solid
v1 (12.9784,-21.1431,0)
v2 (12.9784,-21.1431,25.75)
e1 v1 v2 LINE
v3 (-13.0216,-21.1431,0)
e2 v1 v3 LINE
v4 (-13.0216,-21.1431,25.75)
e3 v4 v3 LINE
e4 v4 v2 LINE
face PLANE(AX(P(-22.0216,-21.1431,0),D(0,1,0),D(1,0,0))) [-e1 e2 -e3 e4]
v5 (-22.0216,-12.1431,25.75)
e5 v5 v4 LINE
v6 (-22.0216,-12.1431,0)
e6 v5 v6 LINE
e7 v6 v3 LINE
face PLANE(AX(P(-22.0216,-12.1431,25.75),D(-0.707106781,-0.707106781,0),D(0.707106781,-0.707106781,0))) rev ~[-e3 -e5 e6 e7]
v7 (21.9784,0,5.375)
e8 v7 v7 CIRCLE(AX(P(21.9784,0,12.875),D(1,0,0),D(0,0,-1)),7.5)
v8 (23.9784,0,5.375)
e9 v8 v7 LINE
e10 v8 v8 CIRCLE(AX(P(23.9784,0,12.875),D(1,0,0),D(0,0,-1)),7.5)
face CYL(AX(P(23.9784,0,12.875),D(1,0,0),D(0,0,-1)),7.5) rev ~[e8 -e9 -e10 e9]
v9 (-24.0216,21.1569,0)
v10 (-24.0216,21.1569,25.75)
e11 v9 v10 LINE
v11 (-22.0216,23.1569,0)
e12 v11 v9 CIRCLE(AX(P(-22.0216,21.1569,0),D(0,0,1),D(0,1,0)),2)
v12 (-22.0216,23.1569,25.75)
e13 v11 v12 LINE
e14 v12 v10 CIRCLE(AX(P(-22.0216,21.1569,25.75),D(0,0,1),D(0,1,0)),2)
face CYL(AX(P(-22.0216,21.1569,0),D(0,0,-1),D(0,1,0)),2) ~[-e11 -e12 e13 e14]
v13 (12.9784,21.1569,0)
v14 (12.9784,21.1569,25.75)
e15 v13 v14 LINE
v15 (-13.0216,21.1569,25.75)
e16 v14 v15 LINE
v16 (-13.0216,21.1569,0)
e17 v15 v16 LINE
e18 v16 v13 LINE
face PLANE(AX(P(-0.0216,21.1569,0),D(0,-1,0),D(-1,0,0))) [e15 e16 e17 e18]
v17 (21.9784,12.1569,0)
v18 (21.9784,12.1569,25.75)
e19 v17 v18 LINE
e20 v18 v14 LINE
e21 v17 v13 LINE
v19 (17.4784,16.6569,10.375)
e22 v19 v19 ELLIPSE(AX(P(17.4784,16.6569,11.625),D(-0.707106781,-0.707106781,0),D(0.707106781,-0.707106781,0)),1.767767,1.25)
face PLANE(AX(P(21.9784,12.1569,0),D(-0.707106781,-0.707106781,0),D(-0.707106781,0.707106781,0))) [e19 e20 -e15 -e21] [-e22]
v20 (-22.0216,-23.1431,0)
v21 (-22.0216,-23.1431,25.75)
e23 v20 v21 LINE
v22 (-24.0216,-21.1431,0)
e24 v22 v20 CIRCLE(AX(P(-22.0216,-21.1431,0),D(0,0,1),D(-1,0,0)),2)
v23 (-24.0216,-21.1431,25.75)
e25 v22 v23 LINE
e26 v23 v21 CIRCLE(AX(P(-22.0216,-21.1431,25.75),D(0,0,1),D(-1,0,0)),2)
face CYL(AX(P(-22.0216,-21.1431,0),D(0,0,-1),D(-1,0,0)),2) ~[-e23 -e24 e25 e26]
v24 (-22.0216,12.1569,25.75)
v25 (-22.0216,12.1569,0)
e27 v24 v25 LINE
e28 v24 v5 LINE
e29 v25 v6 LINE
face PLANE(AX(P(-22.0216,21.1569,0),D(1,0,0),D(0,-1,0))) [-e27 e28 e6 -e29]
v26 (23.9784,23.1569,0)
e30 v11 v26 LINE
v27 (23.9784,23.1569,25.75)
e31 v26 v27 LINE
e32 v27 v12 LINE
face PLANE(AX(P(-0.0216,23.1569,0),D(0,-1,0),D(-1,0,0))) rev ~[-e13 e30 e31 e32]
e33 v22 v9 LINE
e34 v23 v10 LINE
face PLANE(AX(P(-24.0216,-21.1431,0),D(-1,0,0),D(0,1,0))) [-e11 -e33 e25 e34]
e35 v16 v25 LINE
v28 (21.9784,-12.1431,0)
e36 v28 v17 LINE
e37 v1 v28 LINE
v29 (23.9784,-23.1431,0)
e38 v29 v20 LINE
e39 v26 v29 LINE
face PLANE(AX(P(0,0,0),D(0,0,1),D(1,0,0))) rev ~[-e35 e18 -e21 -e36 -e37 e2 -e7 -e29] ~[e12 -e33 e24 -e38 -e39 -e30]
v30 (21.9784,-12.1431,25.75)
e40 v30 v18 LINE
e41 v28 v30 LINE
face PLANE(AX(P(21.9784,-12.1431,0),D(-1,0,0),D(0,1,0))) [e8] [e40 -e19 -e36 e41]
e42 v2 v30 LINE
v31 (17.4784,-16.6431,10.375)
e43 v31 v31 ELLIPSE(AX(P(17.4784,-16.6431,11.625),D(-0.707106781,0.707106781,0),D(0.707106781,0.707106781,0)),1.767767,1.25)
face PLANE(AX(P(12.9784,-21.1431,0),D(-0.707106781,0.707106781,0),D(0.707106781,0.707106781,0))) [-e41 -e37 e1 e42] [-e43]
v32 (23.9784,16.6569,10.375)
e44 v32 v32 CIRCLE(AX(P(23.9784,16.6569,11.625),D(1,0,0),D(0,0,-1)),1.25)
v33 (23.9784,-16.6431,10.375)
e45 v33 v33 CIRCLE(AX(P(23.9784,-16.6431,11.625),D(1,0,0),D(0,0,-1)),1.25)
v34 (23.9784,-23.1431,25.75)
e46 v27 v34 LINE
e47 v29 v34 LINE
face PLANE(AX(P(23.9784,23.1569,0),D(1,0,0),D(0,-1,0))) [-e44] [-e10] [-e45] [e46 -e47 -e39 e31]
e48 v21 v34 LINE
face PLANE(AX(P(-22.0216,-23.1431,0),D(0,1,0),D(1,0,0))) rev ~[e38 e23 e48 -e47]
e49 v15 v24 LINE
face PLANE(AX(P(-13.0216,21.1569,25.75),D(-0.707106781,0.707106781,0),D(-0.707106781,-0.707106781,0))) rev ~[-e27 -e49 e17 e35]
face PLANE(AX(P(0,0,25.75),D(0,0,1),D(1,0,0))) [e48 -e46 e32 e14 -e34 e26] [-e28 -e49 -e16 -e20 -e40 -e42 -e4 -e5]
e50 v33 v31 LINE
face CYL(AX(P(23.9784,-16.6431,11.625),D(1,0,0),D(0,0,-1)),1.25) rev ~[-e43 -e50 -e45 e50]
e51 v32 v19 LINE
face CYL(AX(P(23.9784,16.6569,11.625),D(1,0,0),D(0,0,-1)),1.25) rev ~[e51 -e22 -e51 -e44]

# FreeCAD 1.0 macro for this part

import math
import FreeCAD as App
import Part
import Sketcher

doc = App.newDocument("Part")
body = doc.addObject("PartDesign::Body", "Body")

sketch1 = body.newObject("Sketcher::SketchObject", "Sketch")
sketch1.AttachmentSupport = (doc.getObject("XY_Plane"), [""])
sketch1.MapMode = "FlatFace"
sketch1.addGeometry([
    Part.LineSegment(App.Vector(-22.0216, -23.1431, 0), App.Vector(23.9784, -23.1431, 0)),
    Part.LineSegment(App.Vector(23.9784, -23.1431, 0), App.Vector(23.9784, 23.1569, 0)),
    Part.LineSegment(App.Vector(23.9784, 23.1569, 0), App.Vector(-22.0216, 23.1569, 0)),
    Part.ArcOfCircle(Part.Circle(App.Vector(-22.0216, 21.1569, 0), App.Vector(0, 0, 1), 2), math.radians(90), math.radians(180)),
    Part.LineSegment(App.Vector(-24.0216, 21.1569, 0), App.Vector(-24.0216, -21.1431, 0)),
    Part.ArcOfCircle(Part.Circle(App.Vector(-22.0216, -21.1431, 0), App.Vector(0, 0, 1), 2), math.radians(180), math.radians(270)),
    Part.LineSegment(App.Vector(-22.0216, -21.1431, 0), App.Vector(-22.0216, 21.1569, 0)),
    Part.LineSegment(App.Vector(-22.0216, 21.1569, 0), App.Vector(12.9784, 21.1569, 0)),
    Part.LineSegment(App.Vector(12.9784, 21.1569, 0), App.Vector(21.9784, 12.1569, 0)),
    Part.LineSegment(App.Vector(21.9784, 12.1569, 0), App.Vector(21.9784, -12.1431, 0)),
    Part.LineSegment(App.Vector(21.9784, -12.1431, 0), App.Vector(12.9784, -21.1431, 0)),
    Part.LineSegment(App.Vector(12.9784, -21.1431, 0), App.Vector(-22.0216, -21.1431, 0)),
], False)
sketch1.addConstraint([
    Sketcher.Constraint("Coincident", 0, 2, 1, 1),
    Sketcher.Constraint("Coincident", 1, 2, 2, 1),
    Sketcher.Constraint("Tangent", 2, 2, 3, 1),
    Sketcher.Constraint("Tangent", 3, 2, 4, 1),
    Sketcher.Constraint("Tangent", 4, 2, 5, 1),
    Sketcher.Constraint("Tangent", 5, 2, 0, 1),
    Sketcher.Constraint("Coincident", 6, 2, 7, 1),
    Sketcher.Constraint("Coincident", 7, 2, 8, 1),
    Sketcher.Constraint("Coincident", 8, 2, 9, 1),
    Sketcher.Constraint("Coincident", 9, 2, 10, 1),
    Sketcher.Constraint("Coincident", 10, 2, 11, 1),
    Sketcher.Constraint("Coincident", 11, 2, 6, 1),
    Sketcher.Constraint("Horizontal", 0),
    Sketcher.Constraint("Vertical", 1),
    Sketcher.Constraint("Horizontal", 2),
    Sketcher.Constraint("Vertical", 4),
    Sketcher.Constraint("Vertical", 6),
    Sketcher.Constraint("Horizontal", 7),
    Sketcher.Constraint("Vertical", 9),
    Sketcher.Constraint("Horizontal", 11),
    Sketcher.Constraint("Coincident", 6, 2, 3, 3),
    Sketcher.Constraint("Coincident", 11, 2, 5, 3),
    Sketcher.Constraint("Perpendicular", 8, 10),
    Sketcher.Constraint("Vertical", 7, 2, 10, 2),
    Sketcher.Constraint("Equal", 8, 10),
    Sketcher.Constraint("Radius", 3, 2.0),
    Sketcher.Constraint("DistanceX", 0, 1, 0, 2, 46.0),
    Sketcher.Constraint("DistanceX", 7, 1, 7, 2, 35.0),
    Sketcher.Constraint("DistanceY", 1, 1, 1, 2, 46.3),
    Sketcher.Constraint("DistanceY", 9, 2, 9, 1, 24.3),
    Sketcher.Constraint("DistanceY", -1, 1, 3, 3, 21.157),
    Sketcher.Constraint("DistanceX", 3, 3, -1, 1, 22.0216),
])
pad1 = body.newObject("PartDesign::Pad", "Pad")
pad1.Profile = sketch1
pad1.Length = 25.75

sketch2 = body.newObject("Sketcher::SketchObject", "Sketch001")
sketch2.AttachmentSupport = (doc.getObject("YZ_Plane"), [""])
sketch2.MapMode = "FlatFace"
sketch2.AttachmentOffset = App.Placement(App.Vector(0, 0, 23.9784), App.Rotation())
sketch2.addGeometry(Part.Circle(App.Vector(0, 12.875, 0), App.Vector(0, 0, 1), 7.5), False)
sketch2.addConstraint([
    Sketcher.Constraint("PointOnObject", 0, 3, -2),
    Sketcher.Constraint("Diameter", 0, 15.0),
    Sketcher.Constraint("DistanceY", -1, 1, 0, 3, 12.875),
])
pocket1 = body.newObject("PartDesign::Pocket", "Pocket")
pocket1.Profile = sketch2
pocket1.Length = 2

sketch3 = body.newObject("Sketcher::SketchObject", "Sketch002")
sketch3.AttachmentSupport = (doc.getObject("XY_Plane"), [""])
sketch3.MapMode = "FlatFace"
sketch3.AttachmentOffset = App.Placement(App.Vector(0, 0, 25.75), App.Rotation())
sketch3.addGeometry([
    Part.LineSegment(App.Vector(-22.0216, -12.1431, 0), App.Vector(-22.0216, -21.1431, 0)),
    Part.LineSegment(App.Vector(-22.0216, -21.1431, 0), App.Vector(-13.0216, -21.1431, 0)),
    Part.LineSegment(App.Vector(-13.0216, -21.1431, 0), App.Vector(-22.0216, -12.1431, 0)),
    Part.LineSegment(App.Vector(-22.0216, 21.1569, 0), App.Vector(-22.0216, 12.1569, 0)),
    Part.LineSegment(App.Vector(-22.0216, 12.1569, 0), App.Vector(-13.0216, 21.1569, 0)),
    Part.LineSegment(App.Vector(-13.0216, 21.1569, 0), App.Vector(-22.0216, 21.1569, 0)),
], False)
sketch3.addConstraint([
    Sketcher.Constraint("Coincident", 0, 2, 1, 1),
    Sketcher.Constraint("Coincident", 1, 2, 2, 1),
    Sketcher.Constraint("Coincident", 2, 2, 0, 1),
    Sketcher.Constraint("Coincident", 3, 2, 4, 1),
    Sketcher.Constraint("Coincident", 4, 2, 5, 1),
    Sketcher.Constraint("Coincident", 5, 2, 3, 1),
    Sketcher.Constraint("Vertical", 0),
    Sketcher.Constraint("Horizontal", 1),
    Sketcher.Constraint("Vertical", 3),
    Sketcher.Constraint("Horizontal", 5),
    Sketcher.Constraint("Perpendicular", 2, 4),
    Sketcher.Constraint("Vertical", 2, 2, 3, 2),
    Sketcher.Constraint("Vertical", 1, 2, 4, 2),
    Sketcher.Constraint("Equal", 5, 0),
    Sketcher.Constraint("DistanceX", 1, 1, 1, 2, 9.0),
    Sketcher.Constraint("DistanceY", 2, 2, 3, 2, 24.3),
    Sketcher.Constraint("DistanceY", 0, 2, -1, 1, 21.143),
    Sketcher.Constraint("DistanceX", 0, 2, -1, 1, 22.0216),
])
pad2 = body.newObject("PartDesign::Pad", "Pad001")
pad2.Profile = sketch3
pad2.Length = 25.75
pad2.Reversed = True

sketch4 = body.newObject("Sketcher::SketchObject", "Sketch003")
sketch4.AttachmentSupport = (doc.getObject("YZ_Plane"), [""])
sketch4.MapMode = "FlatFace"
sketch4.AttachmentOffset = App.Placement(App.Vector(0, 0, 23.9784), App.Rotation())
sketch4.addGeometry([
    Part.Circle(App.Vector(16.6569, 11.625, 0), App.Vector(0, 0, 1), 1.25),
    Part.Circle(App.Vector(-16.6431, 11.625, 0), App.Vector(0, 0, 1), 1.25),
], False)
sketch4.addConstraint([
    Sketcher.Constraint("Equal", 0, 1),
    Sketcher.Constraint("Horizontal", 0, 3, 1, 3),
    Sketcher.Constraint("Diameter", 0, 2.5),
    Sketcher.Constraint("DistanceX", 1, 3, 0, 3, 33.3),
    Sketcher.Constraint("DistanceX", -1, 1, 0, 3, 16.657),
    Sketcher.Constraint("DistanceY", -1, 1, 0, 3, 11.625),
])
pocket2 = body.newObject("PartDesign::Pocket", "Pocket001")
pocket2.Profile = sketch4
pocket2.Length = 25.75

doc.recompute()
